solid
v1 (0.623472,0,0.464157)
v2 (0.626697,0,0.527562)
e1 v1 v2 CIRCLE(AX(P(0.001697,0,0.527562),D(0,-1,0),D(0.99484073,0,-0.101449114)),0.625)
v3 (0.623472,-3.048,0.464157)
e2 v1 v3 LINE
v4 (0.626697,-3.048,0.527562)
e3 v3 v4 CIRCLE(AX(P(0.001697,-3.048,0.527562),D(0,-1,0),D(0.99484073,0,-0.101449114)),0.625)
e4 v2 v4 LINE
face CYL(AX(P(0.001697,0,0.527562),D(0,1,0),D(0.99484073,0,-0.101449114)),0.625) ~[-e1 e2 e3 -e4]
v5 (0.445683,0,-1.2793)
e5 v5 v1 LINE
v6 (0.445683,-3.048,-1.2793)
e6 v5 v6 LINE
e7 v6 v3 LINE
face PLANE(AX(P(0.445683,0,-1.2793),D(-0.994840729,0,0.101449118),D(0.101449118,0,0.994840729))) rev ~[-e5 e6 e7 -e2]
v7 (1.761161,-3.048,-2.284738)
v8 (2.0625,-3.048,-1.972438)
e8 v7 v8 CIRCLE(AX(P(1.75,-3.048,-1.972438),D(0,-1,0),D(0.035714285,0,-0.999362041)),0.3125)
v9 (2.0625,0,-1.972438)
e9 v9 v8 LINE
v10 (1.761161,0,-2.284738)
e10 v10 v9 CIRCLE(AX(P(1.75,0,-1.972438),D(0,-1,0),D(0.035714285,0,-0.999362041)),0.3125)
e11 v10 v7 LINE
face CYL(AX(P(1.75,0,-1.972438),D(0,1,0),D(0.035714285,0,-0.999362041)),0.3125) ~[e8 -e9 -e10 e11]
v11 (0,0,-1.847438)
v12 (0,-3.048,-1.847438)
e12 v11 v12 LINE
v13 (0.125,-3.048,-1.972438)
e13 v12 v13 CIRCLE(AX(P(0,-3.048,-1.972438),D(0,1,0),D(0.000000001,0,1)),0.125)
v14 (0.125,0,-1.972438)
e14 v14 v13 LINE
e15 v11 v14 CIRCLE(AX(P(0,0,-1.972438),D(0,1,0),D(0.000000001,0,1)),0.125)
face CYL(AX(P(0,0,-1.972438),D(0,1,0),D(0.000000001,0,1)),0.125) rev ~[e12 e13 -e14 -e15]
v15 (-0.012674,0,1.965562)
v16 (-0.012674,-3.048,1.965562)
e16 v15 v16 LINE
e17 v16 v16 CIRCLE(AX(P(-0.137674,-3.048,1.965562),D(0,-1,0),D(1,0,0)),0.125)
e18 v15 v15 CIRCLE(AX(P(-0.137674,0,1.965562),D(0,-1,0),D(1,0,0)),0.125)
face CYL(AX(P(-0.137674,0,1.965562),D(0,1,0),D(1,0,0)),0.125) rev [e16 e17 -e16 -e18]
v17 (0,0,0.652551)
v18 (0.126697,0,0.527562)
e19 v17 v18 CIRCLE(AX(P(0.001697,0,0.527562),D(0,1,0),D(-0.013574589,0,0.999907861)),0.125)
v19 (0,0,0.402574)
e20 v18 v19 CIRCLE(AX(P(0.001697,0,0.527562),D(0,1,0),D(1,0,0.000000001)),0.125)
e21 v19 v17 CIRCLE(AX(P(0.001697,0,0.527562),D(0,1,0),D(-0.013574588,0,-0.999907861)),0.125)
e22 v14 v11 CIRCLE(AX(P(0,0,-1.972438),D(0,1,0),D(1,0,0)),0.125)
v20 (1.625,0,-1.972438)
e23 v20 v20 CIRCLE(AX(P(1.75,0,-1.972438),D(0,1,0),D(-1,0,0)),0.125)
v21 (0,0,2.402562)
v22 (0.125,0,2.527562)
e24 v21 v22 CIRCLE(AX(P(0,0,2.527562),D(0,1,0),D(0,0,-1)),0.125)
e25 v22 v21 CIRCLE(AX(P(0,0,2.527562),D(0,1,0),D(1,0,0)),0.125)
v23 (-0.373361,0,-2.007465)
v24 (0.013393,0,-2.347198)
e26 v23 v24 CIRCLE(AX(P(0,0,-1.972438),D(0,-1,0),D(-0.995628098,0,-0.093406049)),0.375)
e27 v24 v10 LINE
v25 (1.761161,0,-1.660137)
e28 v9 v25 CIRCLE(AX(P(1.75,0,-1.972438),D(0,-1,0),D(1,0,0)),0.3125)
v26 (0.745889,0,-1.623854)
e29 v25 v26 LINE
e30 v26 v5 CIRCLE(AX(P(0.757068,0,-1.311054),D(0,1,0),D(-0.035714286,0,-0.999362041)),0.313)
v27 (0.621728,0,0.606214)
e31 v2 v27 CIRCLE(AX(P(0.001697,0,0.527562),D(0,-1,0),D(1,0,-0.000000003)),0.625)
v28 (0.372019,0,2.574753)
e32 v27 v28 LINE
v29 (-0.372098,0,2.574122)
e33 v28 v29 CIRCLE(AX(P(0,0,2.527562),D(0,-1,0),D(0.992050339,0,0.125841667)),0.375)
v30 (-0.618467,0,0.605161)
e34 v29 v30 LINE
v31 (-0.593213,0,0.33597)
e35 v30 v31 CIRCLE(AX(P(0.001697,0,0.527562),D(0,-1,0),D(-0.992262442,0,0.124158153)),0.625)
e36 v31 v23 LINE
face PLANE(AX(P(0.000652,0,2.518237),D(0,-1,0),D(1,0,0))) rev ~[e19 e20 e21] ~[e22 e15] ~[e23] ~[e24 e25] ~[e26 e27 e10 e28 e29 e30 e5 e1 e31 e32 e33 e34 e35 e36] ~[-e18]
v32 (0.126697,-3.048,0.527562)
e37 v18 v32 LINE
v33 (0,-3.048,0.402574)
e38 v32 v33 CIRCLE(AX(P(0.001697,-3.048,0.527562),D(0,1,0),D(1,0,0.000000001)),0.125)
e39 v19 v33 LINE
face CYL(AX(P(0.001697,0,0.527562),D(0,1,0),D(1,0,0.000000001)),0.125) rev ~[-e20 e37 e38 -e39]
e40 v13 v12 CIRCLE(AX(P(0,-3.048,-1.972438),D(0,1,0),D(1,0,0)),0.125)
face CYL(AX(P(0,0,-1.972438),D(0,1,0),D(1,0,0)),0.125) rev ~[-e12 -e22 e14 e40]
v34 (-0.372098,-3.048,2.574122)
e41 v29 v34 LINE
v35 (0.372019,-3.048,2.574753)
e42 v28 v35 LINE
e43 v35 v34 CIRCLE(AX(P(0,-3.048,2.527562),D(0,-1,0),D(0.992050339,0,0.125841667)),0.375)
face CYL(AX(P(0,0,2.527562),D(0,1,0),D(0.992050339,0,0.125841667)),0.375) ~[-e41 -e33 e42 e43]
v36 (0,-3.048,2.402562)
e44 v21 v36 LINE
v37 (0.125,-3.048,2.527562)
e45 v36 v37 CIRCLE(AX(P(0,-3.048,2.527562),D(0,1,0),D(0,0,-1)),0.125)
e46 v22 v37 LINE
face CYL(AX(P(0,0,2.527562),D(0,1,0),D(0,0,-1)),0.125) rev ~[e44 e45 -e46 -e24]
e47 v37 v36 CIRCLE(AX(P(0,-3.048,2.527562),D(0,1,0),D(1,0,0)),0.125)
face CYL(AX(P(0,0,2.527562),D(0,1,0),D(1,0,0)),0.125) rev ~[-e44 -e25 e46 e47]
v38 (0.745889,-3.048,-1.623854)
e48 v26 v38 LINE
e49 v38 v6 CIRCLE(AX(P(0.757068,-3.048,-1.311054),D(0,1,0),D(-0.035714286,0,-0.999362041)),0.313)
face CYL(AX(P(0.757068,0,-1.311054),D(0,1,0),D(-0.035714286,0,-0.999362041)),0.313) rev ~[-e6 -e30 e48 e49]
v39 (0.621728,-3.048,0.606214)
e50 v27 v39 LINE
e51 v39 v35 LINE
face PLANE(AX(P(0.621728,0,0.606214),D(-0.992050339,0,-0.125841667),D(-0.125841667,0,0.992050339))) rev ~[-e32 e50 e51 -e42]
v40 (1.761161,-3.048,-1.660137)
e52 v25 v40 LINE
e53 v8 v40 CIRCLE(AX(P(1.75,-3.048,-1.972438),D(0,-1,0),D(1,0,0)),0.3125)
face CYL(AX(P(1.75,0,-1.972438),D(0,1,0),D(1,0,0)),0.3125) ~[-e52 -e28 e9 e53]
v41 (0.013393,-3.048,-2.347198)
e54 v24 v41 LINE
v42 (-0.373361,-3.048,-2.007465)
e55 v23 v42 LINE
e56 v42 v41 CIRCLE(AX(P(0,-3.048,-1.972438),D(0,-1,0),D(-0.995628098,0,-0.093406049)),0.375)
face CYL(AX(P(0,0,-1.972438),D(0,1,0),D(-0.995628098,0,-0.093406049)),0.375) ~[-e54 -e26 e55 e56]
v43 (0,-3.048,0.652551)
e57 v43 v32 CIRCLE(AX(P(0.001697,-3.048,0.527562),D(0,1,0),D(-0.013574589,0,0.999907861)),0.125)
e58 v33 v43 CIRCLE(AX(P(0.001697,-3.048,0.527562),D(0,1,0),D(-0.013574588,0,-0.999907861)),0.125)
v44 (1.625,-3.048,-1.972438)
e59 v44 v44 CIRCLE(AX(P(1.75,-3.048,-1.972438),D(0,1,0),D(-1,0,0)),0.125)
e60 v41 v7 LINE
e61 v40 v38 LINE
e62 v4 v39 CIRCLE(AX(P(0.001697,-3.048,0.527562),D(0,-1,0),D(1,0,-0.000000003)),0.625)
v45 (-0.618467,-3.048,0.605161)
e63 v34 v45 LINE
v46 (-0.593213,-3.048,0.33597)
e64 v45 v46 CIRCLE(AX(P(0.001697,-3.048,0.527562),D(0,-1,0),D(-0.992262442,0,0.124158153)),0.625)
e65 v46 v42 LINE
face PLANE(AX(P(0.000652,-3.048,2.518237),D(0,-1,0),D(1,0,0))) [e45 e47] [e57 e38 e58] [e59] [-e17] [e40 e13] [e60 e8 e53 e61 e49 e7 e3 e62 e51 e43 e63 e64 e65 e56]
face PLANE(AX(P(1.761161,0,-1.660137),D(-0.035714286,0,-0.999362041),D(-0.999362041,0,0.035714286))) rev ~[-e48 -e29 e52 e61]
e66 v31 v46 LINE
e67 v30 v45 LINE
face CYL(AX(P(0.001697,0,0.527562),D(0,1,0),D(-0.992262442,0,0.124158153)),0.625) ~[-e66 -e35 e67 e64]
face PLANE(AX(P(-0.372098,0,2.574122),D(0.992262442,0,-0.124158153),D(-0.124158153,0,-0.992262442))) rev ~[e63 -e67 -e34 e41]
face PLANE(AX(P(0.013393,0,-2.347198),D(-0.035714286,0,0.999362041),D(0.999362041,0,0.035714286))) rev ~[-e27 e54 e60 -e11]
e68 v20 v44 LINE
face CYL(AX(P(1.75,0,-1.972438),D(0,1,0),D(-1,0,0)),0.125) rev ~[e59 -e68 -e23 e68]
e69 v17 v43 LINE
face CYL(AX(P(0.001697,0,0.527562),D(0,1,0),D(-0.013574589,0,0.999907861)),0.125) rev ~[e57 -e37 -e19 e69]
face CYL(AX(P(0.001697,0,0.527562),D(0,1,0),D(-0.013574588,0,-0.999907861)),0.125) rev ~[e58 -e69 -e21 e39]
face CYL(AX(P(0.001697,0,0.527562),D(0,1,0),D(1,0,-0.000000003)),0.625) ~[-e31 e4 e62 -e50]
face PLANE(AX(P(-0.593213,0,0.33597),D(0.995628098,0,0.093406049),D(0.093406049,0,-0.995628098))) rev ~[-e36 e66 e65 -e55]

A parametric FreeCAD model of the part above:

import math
import FreeCAD as App
import Part
import Sketcher
Q = App.Units.Quantity

doc = App.newDocument("Part")
body = doc.addObject("PartDesign::Body", "Body")

# Sketch on XZ plane
sketch1 = doc.addObject("Sketcher::SketchObject", "Sketch")
body.addObject(sketch1)
sketch1.AttachmentSupport = (doc.XZ_Plane, [""])
sketch1.MapMode = "FlatFace"
sketch1.addGeometry(Part.ArcOfCircle(Part.Circle(App.Vector(0, -1.97, 0), App.Vector(0, 0, 1), 0.38), math.radians(-175), math.radians(-88)), False)
sketch1.addGeometry(Part.LineSegment(App.Vector(0.01, -2.35, 0), App.Vector(1.76, -2.28, 0)), False)
sketch1.addGeometry(Part.ArcOfCircle(Part.Circle(App.Vector(1.75, -1.97, 0), App.Vector(0, 0, 1), 0.31), math.radians(-88), math.radians(0)), False)
sketch1.addGeometry(Part.ArcOfCircle(Part.Circle(App.Vector(1.75, -1.97, 0), App.Vector(0, 0, 1), 0.31), math.radians(0), math.radians(88)), False)
sketch1.addGeometry(Part.LineSegment(App.Vector(1.76, -1.66, 0), App.Vector(0.75, -1.62, 0)), False)
sketch1.addGeometry(Part.ArcOfCircle(Part.Circle(App.Vector(0.76, -1.31, 0), App.Vector(0, 0, 1), 0.31), math.radians(174), math.radians(268)), False)
sketch1.addGeometry(Part.LineSegment(App.Vector(0.45, -1.28, 0), App.Vector(0.62, 0.46, 0)), False)
sketch1.addGeometry(Part.ArcOfCircle(Part.Circle(App.Vector(0, 0.53, 0), App.Vector(0, 0, 1), 0.63), math.radians(-5.82), math.radians(0)), False)
sketch1.addGeometry(Part.ArcOfCircle(Part.Circle(App.Vector(0, 0.53, 0), App.Vector(0, 0, 1), 0.62), math.radians(0), math.radians(7.23)), False)
sketch1.addGeometry(Part.LineSegment(App.Vector(0.62, 0.61, 0), App.Vector(0.37, 2.57, 0)), False)
sketch1.addGeometry(Part.ArcOfCircle(Part.Circle(App.Vector(0, 2.53, 0), App.Vector(0, 0, 1), 0.38), math.radians(7), math.radians(173)), False)
sketch1.addGeometry(Part.LineSegment(App.Vector(-0.37, 2.57, 0), App.Vector(-0.62, 0.61, 0)), False)
sketch1.addGeometry(Part.ArcOfCircle(Part.Circle(App.Vector(0, 0.53, 0), App.Vector(0, 0, 1), 0.62), math.radians(173), math.radians(198)), False)
sketch1.addGeometry(Part.LineSegment(App.Vector(-0.59, 0.34, 0), App.Vector(-0.37, -2.01, 0)), False)
sketch1.addGeometry(Part.ArcOfCircle(Part.Circle(App.Vector(0, -1.97, 0), App.Vector(0, 0, 1), 0.12), math.radians(90), math.radians(360)), False)
sketch1.addGeometry(Part.ArcOfCircle(Part.Circle(App.Vector(0, -1.97, 0), App.Vector(0, 0, 1), 0.12), math.radians(0), math.radians(90)), False)
sketch1.addGeometry(Part.Circle(App.Vector(1.75, -1.97, 0), App.Vector(0, 0, 1), 0.12), False)
sketch1.addGeometry(Part.ArcOfCircle(Part.Circle(App.Vector(0, 0.53, 0), App.Vector(0, 0, 1), 0.12), math.radians(0), math.radians(91)), False)
sketch1.addGeometry(Part.ArcOfCircle(Part.Circle(App.Vector(0, 0.53, 0), App.Vector(0, 0, 1), 0.12), math.radians(-91), math.radians(0)), False)
sketch1.addGeometry(Part.ArcOfCircle(Part.Circle(App.Vector(0, 0.53, 0), App.Vector(0, 0, 1), 0.12), math.radians(91), math.radians(269)), False)
sketch1.addGeometry(Part.Circle(App.Vector(-0.14, 1.97, 0), App.Vector(0, 0, 1), 0.12), False)
sketch1.addGeometry(Part.ArcOfCircle(Part.Circle(App.Vector(0, 2.53, 0), App.Vector(0, 0, 1), 0.12), math.radians(0), math.radians(270)), False)
sketch1.addGeometry(Part.ArcOfCircle(Part.Circle(App.Vector(0, 2.53, 0), App.Vector(0, 0, 1), 0.12), math.radians(-90), math.radians(0)), False)
sketch1.addConstraint(Sketcher.Constraint("Tangent", 0, 2, 1, 1))
sketch1.addConstraint(Sketcher.Constraint("Tangent", 1, 2, 2, 1))
sketch1.addConstraint(Sketcher.Constraint("Tangent", 2, 2, 3, 1))
sketch1.addConstraint(Sketcher.Constraint("Tangent", 3, 2, 4, 1))
sketch1.addConstraint(Sketcher.Constraint("Tangent", 4, 2, 5, 2))
sketch1.addConstraint(Sketcher.Constraint("Tangent", 5, 1, 6, 1))
sketch1.addConstraint(Sketcher.Constraint("Tangent", 6, 2, 7, 1))
sketch1.addConstraint(Sketcher.Constraint("Tangent", 7, 2, 8, 1))
sketch1.addConstraint(Sketcher.Constraint("Tangent", 8, 2, 9, 1))
sketch1.addConstraint(Sketcher.Constraint("Tangent", 9, 2, 10, 1))
sketch1.addConstraint(Sketcher.Constraint("Tangent", 10, 2, 11, 1))
sketch1.addConstraint(Sketcher.Constraint("Tangent", 11, 2, 12, 1))
sketch1.addConstraint(Sketcher.Constraint("Coincident", 12, 2, 13, 1))
sketch1.addConstraint(Sketcher.Constraint("Tangent", 13, 2, 0, 1))
sketch1.addConstraint(Sketcher.Constraint("Tangent", 14, 1, 15, 2))
sketch1.addConstraint(Sketcher.Constraint("Coincident", 15, 1, 14, 2))
sketch1.addConstraint(Sketcher.Constraint("Tangent", 17, 1, 18, 2))
sketch1.addConstraint(Sketcher.Constraint("Tangent", 18, 1, 19, 2))
sketch1.addConstraint(Sketcher.Constraint("Tangent", 19, 1, 17, 2))
sketch1.addConstraint(Sketcher.Constraint("Tangent", 21, 1, 22, 2))
sketch1.addConstraint(Sketcher.Constraint("Coincident", 22, 1, 21, 2))
sketch1.addConstraint(Sketcher.Constraint("Coincident", 12, 3, 7, 3))
sketch1.addConstraint(Sketcher.Constraint("Coincident", 14, 3, 0, 3))
sketch1.addConstraint(Sketcher.Constraint("Coincident", 16, 3, 2, 3))
sketch1.addConstraint(Sketcher.Constraint("Coincident", 17, 3, 7, 3))
sketch1.addConstraint(Sketcher.Constraint("Coincident", 21, 3, 10, 3))
sketch1.addConstraint(Sketcher.Constraint("Equal", 2, 3))
sketch1.addConstraint(Sketcher.Constraint("Equal", 7, 8))
sketch1.addConstraint(Sketcher.Constraint("Equal", 0, 10))
sketch1.addConstraint(Sketcher.Constraint("Equal", 8, 12))
sketch1.addConstraint(Sketcher.Constraint("Equal", 15, 16))
sketch1.addConstraint(Sketcher.Constraint("Equal", 16, 17))
sketch1.addConstraint(Sketcher.Constraint("Equal", 19, 20))
sketch1.addConstraint(Sketcher.Constraint("Equal", 20, 21))
sketch1.addConstraint(Sketcher.Constraint("PointOnObject", 0, 3, -2))
sketch1.addConstraint(Sketcher.Constraint("PointOnObject", 10, 3, -2))
sketch1.addConstraint(Sketcher.Constraint("PointOnObject", 14, 1, -2))
sketch1.addConstraint(Sketcher.Constraint("PointOnObject", 18, 1, -2))
sketch1.addConstraint(Sketcher.Constraint("PointOnObject", 19, 1, -2))
sketch1.addConstraint(Sketcher.Constraint("PointOnObject", 22, 1, -2))
sketch1.addConstraint(Sketcher.Constraint("Horizontal", 0, 3, 2, 3))
sketch1.addConstraint(Sketcher.Constraint("Horizontal", 16, 3, 2, 2))
sketch1.addConstraint(Sketcher.Constraint("Horizontal", 19, 3, 7, 2))
sketch1.addConstraint(Sketcher.Constraint("Horizontal", 2, 2, 15, 1))
sketch1.addConstraint(Sketcher.Constraint("Horizontal", 7, 2, 17, 1))
sketch1.addConstraint(Sketcher.Constraint("Horizontal", 22, 3, 21, 1))
sketch1.addConstraint(Sketcher.Constraint("Vertical", 1, 2, 3, 2))
sketch1.addConstraint(Sketcher.Constraint("Diameter", 16, 0.25))
sketch1.addConstraint(Sketcher.Constraint("Radius", 0, 0.375))
sketch1.addConstraint(Sketcher.Constraint("Radius", 2, 0.3125))
sketch1.addConstraint(Sketcher.Constraint("Radius", 5, 0.313))
sketch1.addConstraint(Sketcher.Constraint("Radius", 7, 0.625))
sketch1.addConstraint(Sketcher.Constraint("Distance", 6, 1.752499))
sketch1.addConstraint(Sketcher.Constraint("DistanceX", -1, 1, 2, 3, 1.75))
sketch1.addConstraint(Sketcher.Constraint("DistanceY", 0, 2, -1, 1, 2.347198))
sketch1.addConstraint(Sketcher.Constraint("DistanceY", 5, 1, -1, 1, 1.2793))
sketch1.addConstraint(Sketcher.Constraint("DistanceY", 8, 3, 10, 3, 2.0))
sketch1.addConstraint(Sketcher.Constraint("DistanceY", 20, 3, 10, 3, 0.562))
sketch1.addConstraint(Sketcher.Constraint("DistanceY", 7, 3, 11, 2, 0.077599))
sketch1.addConstraint(Sketcher.Constraint("DistanceY", -1, 1, 12, 2, 0.33597))
sketch1.addConstraint(Sketcher.Constraint("DistanceX", 20, 3, 7, 3, 0.139371))
pad1 = doc.addObject("PartDesign::Pad", "Pad")
body.addObject(pad1)
pad1.Profile = sketch1
pad1.Length = Q("0.12 in")

doc.recompute()
